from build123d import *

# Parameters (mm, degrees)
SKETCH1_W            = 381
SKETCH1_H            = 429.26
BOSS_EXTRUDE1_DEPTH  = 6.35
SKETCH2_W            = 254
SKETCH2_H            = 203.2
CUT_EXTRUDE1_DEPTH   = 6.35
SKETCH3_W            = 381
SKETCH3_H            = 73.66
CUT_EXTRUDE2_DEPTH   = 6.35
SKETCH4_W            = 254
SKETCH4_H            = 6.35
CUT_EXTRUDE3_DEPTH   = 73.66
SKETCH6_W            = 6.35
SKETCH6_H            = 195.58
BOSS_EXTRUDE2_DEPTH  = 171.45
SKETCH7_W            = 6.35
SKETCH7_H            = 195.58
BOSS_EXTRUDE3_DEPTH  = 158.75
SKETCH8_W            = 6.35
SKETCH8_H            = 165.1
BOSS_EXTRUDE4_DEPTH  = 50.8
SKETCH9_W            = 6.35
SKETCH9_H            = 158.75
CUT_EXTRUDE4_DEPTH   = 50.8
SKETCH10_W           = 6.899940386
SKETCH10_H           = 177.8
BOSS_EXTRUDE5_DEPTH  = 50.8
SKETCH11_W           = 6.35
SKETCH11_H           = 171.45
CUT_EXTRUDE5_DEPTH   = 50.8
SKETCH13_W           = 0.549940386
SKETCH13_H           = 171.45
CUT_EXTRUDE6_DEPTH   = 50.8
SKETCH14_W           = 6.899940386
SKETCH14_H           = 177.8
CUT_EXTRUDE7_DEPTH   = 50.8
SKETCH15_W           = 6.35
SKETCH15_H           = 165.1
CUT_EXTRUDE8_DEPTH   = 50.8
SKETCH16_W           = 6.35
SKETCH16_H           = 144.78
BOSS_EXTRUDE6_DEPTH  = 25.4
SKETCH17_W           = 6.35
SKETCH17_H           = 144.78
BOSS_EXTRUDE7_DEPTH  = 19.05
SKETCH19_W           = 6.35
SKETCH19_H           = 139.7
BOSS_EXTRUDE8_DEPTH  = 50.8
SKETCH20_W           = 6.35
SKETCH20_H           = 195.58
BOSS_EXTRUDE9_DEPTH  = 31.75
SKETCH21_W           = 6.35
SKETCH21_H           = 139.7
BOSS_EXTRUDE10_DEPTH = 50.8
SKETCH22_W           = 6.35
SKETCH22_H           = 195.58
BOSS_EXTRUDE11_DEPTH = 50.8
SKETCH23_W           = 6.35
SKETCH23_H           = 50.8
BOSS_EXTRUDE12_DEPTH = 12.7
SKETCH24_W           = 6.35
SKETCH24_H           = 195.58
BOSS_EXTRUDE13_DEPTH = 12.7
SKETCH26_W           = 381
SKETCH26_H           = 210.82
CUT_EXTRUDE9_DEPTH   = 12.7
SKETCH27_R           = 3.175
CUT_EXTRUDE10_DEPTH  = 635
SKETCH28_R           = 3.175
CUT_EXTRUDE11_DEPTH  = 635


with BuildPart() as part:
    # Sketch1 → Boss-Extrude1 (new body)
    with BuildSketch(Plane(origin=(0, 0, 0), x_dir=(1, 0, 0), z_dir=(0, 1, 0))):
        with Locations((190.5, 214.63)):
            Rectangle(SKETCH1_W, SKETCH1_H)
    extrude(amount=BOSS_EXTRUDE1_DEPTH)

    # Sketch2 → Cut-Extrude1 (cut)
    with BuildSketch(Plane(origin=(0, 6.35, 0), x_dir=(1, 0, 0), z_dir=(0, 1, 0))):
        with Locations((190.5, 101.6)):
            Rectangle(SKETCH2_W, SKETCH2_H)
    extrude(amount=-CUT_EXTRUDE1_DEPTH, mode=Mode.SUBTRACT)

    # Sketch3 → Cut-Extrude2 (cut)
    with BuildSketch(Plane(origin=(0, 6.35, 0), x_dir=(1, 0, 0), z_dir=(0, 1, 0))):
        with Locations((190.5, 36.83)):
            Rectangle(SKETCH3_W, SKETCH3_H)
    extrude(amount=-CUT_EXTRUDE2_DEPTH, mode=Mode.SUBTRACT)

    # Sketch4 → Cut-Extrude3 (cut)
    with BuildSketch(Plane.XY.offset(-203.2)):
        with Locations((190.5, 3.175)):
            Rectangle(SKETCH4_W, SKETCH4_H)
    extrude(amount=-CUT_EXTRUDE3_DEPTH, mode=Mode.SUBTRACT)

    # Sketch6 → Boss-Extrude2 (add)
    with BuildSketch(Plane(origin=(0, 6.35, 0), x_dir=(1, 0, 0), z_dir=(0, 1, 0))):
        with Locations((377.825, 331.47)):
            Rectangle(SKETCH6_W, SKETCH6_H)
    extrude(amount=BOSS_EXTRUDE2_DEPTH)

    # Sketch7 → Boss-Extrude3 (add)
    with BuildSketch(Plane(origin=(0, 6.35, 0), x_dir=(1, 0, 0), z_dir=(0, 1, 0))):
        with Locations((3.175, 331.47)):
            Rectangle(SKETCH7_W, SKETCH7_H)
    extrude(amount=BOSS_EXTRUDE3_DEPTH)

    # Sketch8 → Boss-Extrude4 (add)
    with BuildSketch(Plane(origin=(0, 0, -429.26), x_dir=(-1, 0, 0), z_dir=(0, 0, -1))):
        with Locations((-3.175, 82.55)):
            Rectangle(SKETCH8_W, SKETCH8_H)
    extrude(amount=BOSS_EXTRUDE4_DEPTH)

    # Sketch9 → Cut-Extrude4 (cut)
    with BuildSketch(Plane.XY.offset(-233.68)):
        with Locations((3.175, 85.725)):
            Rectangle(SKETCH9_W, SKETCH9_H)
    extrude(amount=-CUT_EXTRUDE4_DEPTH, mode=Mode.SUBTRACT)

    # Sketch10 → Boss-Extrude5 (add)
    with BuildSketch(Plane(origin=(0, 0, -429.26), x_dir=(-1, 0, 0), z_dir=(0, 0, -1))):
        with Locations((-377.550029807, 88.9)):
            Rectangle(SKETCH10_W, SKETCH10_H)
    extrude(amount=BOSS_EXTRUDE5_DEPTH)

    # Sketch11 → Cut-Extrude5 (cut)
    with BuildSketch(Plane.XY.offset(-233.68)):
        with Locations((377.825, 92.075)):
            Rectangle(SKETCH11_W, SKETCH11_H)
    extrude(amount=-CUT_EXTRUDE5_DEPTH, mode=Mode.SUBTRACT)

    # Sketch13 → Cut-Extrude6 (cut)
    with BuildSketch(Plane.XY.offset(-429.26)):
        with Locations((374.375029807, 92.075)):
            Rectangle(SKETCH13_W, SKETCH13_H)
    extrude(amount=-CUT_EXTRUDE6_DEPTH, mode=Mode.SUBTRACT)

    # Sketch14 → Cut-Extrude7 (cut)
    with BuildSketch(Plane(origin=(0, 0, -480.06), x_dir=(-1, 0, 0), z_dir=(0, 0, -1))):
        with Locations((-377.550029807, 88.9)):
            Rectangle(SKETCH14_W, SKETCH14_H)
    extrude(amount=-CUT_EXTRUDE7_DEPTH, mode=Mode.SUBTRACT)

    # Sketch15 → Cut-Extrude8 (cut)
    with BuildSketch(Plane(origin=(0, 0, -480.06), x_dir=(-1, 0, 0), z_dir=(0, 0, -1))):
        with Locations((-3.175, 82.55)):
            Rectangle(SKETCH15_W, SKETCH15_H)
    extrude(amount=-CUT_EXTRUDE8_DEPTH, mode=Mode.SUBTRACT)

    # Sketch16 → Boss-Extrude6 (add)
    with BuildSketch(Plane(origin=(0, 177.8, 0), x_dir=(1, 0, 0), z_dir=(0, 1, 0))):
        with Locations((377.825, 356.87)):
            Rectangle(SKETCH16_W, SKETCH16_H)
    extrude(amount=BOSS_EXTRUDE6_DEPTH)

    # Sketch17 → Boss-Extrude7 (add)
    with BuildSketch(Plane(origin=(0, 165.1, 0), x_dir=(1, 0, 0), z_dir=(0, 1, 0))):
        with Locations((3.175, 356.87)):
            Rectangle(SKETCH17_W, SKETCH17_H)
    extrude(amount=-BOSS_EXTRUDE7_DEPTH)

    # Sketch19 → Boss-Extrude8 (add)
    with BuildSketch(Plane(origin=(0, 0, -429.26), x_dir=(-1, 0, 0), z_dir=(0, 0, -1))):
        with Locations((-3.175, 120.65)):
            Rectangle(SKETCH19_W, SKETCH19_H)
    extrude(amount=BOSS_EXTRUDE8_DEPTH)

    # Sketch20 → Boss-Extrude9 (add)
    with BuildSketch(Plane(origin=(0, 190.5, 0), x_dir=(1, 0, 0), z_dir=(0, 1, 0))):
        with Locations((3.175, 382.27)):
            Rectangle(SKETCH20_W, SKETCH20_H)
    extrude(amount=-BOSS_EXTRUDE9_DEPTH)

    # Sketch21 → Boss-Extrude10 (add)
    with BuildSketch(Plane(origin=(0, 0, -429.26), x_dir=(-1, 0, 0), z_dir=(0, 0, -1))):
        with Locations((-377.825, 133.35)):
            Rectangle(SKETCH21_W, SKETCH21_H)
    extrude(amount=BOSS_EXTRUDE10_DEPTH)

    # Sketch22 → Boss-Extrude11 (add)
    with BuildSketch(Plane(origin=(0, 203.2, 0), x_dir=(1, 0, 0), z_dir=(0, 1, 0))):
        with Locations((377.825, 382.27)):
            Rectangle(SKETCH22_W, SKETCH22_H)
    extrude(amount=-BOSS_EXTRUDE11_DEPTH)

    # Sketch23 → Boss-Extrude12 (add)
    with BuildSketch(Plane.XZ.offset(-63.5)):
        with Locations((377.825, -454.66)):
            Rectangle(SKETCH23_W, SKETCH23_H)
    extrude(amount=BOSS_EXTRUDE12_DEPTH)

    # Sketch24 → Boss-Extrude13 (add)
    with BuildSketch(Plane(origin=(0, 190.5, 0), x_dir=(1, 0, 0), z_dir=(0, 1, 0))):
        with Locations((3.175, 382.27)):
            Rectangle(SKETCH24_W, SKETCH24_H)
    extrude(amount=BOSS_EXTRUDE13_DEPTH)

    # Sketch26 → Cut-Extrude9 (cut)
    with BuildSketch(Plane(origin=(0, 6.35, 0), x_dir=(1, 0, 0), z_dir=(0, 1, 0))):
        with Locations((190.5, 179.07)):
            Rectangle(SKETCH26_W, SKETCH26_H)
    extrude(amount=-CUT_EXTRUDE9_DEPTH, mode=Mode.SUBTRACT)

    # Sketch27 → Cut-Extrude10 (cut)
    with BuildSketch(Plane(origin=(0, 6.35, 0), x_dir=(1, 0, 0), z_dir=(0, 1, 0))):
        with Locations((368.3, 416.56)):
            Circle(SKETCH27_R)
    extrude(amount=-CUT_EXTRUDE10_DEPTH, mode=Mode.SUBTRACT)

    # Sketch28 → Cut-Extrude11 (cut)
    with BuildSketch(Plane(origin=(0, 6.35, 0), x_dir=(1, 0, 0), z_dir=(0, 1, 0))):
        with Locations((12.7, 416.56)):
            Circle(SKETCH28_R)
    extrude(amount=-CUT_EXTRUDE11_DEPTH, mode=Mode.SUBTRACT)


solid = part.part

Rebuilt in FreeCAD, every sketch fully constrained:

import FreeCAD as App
import Part
import Sketcher
from FreeCAD import Vector
Q = App.Units.Quantity

doc = App.newDocument("Part")
params = doc.addObject("Spreadsheet::Sheet", "Params")
for row, (alias, value) in enumerate([
    ("sketch1_width", "15 in"),
    ("sketch1_height", "16.9 in"),
    ("pad1_length", "0.25 in"),
    ("sketch2_width", "10 in"),
    ("sketch2_height", "8 in"),
    ("pocket1_length", "0.25 in"),
    ("sketch3_width", "15 in"),
    ("sketch3_height", "2.9 in"),
    ("pocket2_length", "0.25 in"),
    ("sketch4_width", "10 in"),
    ("sketch4_height", "0.25 in"),
    ("pocket3_length", "2.9 in"),
    ("sketch5_height", "7.7 in"),
    ("sketch5_width", "0.25 in"),
    ("pad2_length", "6.75 in"),
    ("sketch6_height", "7.7 in"),
    ("sketch6_width", "0.25 in"),
    ("pad3_length", "6.25 in"),
    ("sketch7_height", "6.5 in"),
    ("sketch7_width", "0.25 in"),
    ("pad4_length", "2 in"),
    ("sketch8_width", "0.25 in"),
    ("sketch8_height", "6.25 in"),
    ("pocket4_length", "2 in"),
    ("sketch9_height", "7 in"),
    ("pad5_length", "2 in"),
    ("sketch10_width", "0.25 in"),
    ("sketch10_height", "6.75 in"),
    ("pocket5_length", "2 in"),
    ("sketch11_height", "6.75 in"),
    ("pocket6_length", "2 in"),
    ("sketch12_height", "7 in"),
    ("pocket7_length", "2 in"),
    ("sketch13_height", "6.5 in"),
    ("sketch13_width", "0.25 in"),
    ("pocket8_length", "2 in"),
    ("sketch14_height", "5.7 in"),
    ("sketch14_width", "0.25 in"),
    ("pad6_length", "1 in"),
    ("sketch15_height", "5.7 in"),
    ("sketch15_width", "0.25 in"),
    ("pad7_length", "0.75 in"),
    ("sketch16_height", "5.5 in"),
    ("sketch16_width", "0.25 in"),
    ("pad8_length", "2 in"),
    ("sketch17_height", "7.7 in"),
    ("sketch17_width", "0.25 in"),
    ("pad9_length", "1.25 in"),
    ("sketch18_height", "5.5 in"),
    ("sketch18_width", "0.25 in"),
    ("pad10_length", "2 in"),
    ("sketch19_height", "7.7 in"),
    ("sketch19_width", "0.25 in"),
    ("pad11_length", "2 in"),
    ("sketch20_height", "2 in"),
    ("sketch20_width", "0.25 in"),
    ("pad12_length", "0.5 in"),
    ("sketch21_height", "7.7 in"),
    ("sketch21_width", "0.25 in"),
    ("pad13_length", "0.5 in"),
    ("sketch22_width", "15 in"),
    ("sketch22_height", "8.3 in"),
    ("pocket9_length", "0.5 in"),
    ("sketch23_diameter", "0.25 in"),
    ("pocket10_length", "25 in"),
    ("sketch24_diameter", "0.25 in"),
    ("pocket11_length", "25 in"),
], start=1):
    params.set(f"A{row}", alias)
    params.set(f"B{row}", "=" + value)
    params.setAlias(f"B{row}", alias)

body = doc.addObject("PartDesign::Body", "Body")

sketch1 = body.newObject("Sketcher::SketchObject", "Sketch")
sketch1.AttachmentSupport = (doc.getObject("XZ_Plane"), [""])
sketch1.MapMode = "FlatFace"
sketch1.addGeometry(Part.LineSegment(Vector(0, -429, 0), Vector(0, 0, 0)), False)
sketch1.addGeometry(Part.LineSegment(Vector(0, 0, 0), Vector(381, 0, 0)), False)
sketch1.addGeometry(Part.LineSegment(Vector(381, 0, 0), Vector(381, -429, 0)), False)
sketch1.addGeometry(Part.LineSegment(Vector(381, -429, 0), Vector(0, -429, 0)), False)
sketch1.addConstraint(Sketcher.Constraint("Coincident", 0, 2, 1, 1))
sketch1.addConstraint(Sketcher.Constraint("Coincident", 1, 2, 2, 1))
sketch1.addConstraint(Sketcher.Constraint("Coincident", 2, 2, 3, 1))
sketch1.addConstraint(Sketcher.Constraint("Coincident", 3, 2, 0, 1))
sketch1.addConstraint(Sketcher.Constraint("Vertical", 0))
sketch1.addConstraint(Sketcher.Constraint("Horizontal", 1))
sketch1.addConstraint(Sketcher.Constraint("Vertical", 2))
sketch1.addConstraint(Sketcher.Constraint("Horizontal", 3))
sketch1.addConstraint(Sketcher.Constraint("Coincident", 0, 2, -1, 1))
sketch1.addConstraint(Sketcher.Constraint("DistanceX", 1, 1, 1, 2, Q("15 in")))
sketch1.addConstraint(Sketcher.Constraint("DistanceY", 0, 1, 0, 2, Q("16.9 in")))
sketch1.setExpression("Constraints[9]", "Params.sketch1_width")
sketch1.setExpression("Constraints[10]", "Params.sketch1_height")
pad1 = body.newObject("PartDesign::Pad", "Pad")
pad1.Profile = sketch1
pad1.setExpression("Length", "Params.pad1_length")
pad1.Reversed = True

sketch2 = body.newObject("Sketcher::SketchObject", "Sketch001")
sketch2.AttachmentSupport = (doc.getObject("XZ_Plane"), [""])
sketch2.MapMode = "FlatFace"
sketch2.AttachmentOffset = App.Placement(Vector(0, 0, -0.25 * 25.4), App.Rotation())
sketch2.addGeometry(Part.LineSegment(Vector(64, -203, 0), Vector(64, 0, 0)), False)
sketch2.addGeometry(Part.LineSegment(Vector(64, 0, 0), Vector(318, 0, 0)), False)
sketch2.addGeometry(Part.LineSegment(Vector(318, 0, 0), Vector(318, -203, 0)), False)
sketch2.addGeometry(Part.LineSegment(Vector(318, -203, 0), Vector(64, -203, 0)), False)
sketch2.addConstraint(Sketcher.Constraint("Coincident", 0, 2, 1, 1))
sketch2.addConstraint(Sketcher.Constraint("Coincident", 1, 2, 2, 1))
sketch2.addConstraint(Sketcher.Constraint("Coincident", 2, 2, 3, 1))
sketch2.addConstraint(Sketcher.Constraint("Coincident", 3, 2, 0, 1))
sketch2.addConstraint(Sketcher.Constraint("Vertical", 0))
sketch2.addConstraint(Sketcher.Constraint("Horizontal", 1))
sketch2.addConstraint(Sketcher.Constraint("Vertical", 2))
sketch2.addConstraint(Sketcher.Constraint("Horizontal", 3))
sketch2.addConstraint(Sketcher.Constraint("PointOnObject", 0, 2, -1))
sketch2.addConstraint(Sketcher.Constraint("DistanceX", 1, 1, 1, 2, Q("10 in")))
sketch2.addConstraint(Sketcher.Constraint("DistanceY", 0, 1, 0, 2, Q("8 in")))
sketch2.addConstraint(Sketcher.Constraint("DistanceX", -1, 1, 0, 2, Q("2.5 in")))
sketch2.setExpression("Constraints[9]", "Params.sketch2_width")
sketch2.setExpression("Constraints[10]", "Params.sketch2_height")
pocket1 = body.newObject("PartDesign::Pocket", "Pocket")
pocket1.Profile = sketch2
pocket1.setExpression("Length", "Params.pocket1_length")
pocket1.Reversed = True

sketch3 = body.newObject("Sketcher::SketchObject", "Sketch002")
sketch3.AttachmentSupport = (doc.getObject("XZ_Plane"), [""])
sketch3.MapMode = "FlatFace"
sketch3.AttachmentOffset = App.Placement(Vector(0, 0, -0.25 * 25.4), App.Rotation())
sketch3.addGeometry(Part.LineSegment(Vector(0, -74, 0), Vector(0, 0, 0)), False)
sketch3.addGeometry(Part.LineSegment(Vector(0, 0, 0), Vector(381, 0, 0)), False)
sketch3.addGeometry(Part.LineSegment(Vector(381, 0, 0), Vector(381, -74, 0)), False)
sketch3.addGeometry(Part.LineSegment(Vector(381, -74, 0), Vector(0, -74, 0)), False)
sketch3.addConstraint(Sketcher.Constraint("Coincident", 0, 2, 1, 1))
sketch3.addConstraint(Sketcher.Constraint("Coincident", 1, 2, 2, 1))
sketch3.addConstraint(Sketcher.Constraint("Coincident", 2, 2, 3, 1))
sketch3.addConstraint(Sketcher.Constraint("Coincident", 3, 2, 0, 1))
sketch3.addConstraint(Sketcher.Constraint("Vertical", 0))
sketch3.addConstraint(Sketcher.Constraint("Horizontal", 1))
sketch3.addConstraint(Sketcher.Constraint("Vertical", 2))
sketch3.addConstraint(Sketcher.Constraint("Horizontal", 3))
sketch3.addConstraint(Sketcher.Constraint("Coincident", 0, 2, -1, 1))
sketch3.addConstraint(Sketcher.Constraint("DistanceX", 1, 1, 1, 2, Q("15 in")))
sketch3.addConstraint(Sketcher.Constraint("DistanceY", 0, 1, 0, 2, Q("2.9 in")))
sketch3.setExpression("Constraints[9]", "Params.sketch3_width")
sketch3.setExpression("Constraints[10]", "Params.sketch3_height")
pocket2 = body.newObject("PartDesign::Pocket", "Pocket001")
pocket2.Profile = sketch3
pocket2.setExpression("Length", "Params.pocket2_length")
pocket2.Reversed = True

sketch4 = body.newObject("Sketcher::SketchObject", "Sketch003")
sketch4.AttachmentSupport = (doc.getObject("XY_Plane"), [""])
sketch4.MapMode = "FlatFace"
sketch4.AttachmentOffset = App.Placement(Vector(0, 0, -8 * 25.4), App.Rotation())
sketch4.addGeometry(Part.LineSegment(Vector(64, 6, 0), Vector(64, 0, 0)), False)
sketch4.addGeometry(Part.LineSegment(Vector(64, 0, 0), Vector(318, 0, 0)), False)
sketch4.addGeometry(Part.LineSegment(Vector(318, 0, 0), Vector(318, 6, 0)), False)
sketch4.addGeometry(Part.LineSegment(Vector(318, 6, 0), Vector(64, 6, 0)), False)
sketch4.addConstraint(Sketcher.Constraint("Coincident", 0, 2, 1, 1))
sketch4.addConstraint(Sketcher.Constraint("Coincident", 1, 2, 2, 1))
sketch4.addConstraint(Sketcher.Constraint("Coincident", 2, 2, 3, 1))
sketch4.addConstraint(Sketcher.Constraint("Coincident", 3, 2, 0, 1))
sketch4.addConstraint(Sketcher.Constraint("Vertical", 0))
sketch4.addConstraint(Sketcher.Constraint("Horizontal", 1))
sketch4.addConstraint(Sketcher.Constraint("Vertical", 2))
sketch4.addConstraint(Sketcher.Constraint("Horizontal", 3))
sketch4.addConstraint(Sketcher.Constraint("PointOnObject", 0, 2, -1))
sketch4.addConstraint(Sketcher.Constraint("DistanceX", 1, 1, 1, 2, Q("10 in")))
sketch4.addConstraint(Sketcher.Constraint("DistanceY", 0, 2, 0, 1, Q("0.25 in")))
sketch4.addConstraint(Sketcher.Constraint("DistanceX", -1, 1, 0, 2, Q("2.5 in")))
sketch4.setExpression("Constraints[9]", "Params.sketch4_width")
sketch4.setExpression("Constraints[10]", "Params.sketch4_height")
pocket3 = body.newObject("PartDesign::Pocket", "Pocket002")
pocket3.Profile = sketch4
pocket3.setExpression("Length", "Params.pocket3_length")

sketch5 = body.newObject("Sketcher::SketchObject", "Sketch004")
sketch5.AttachmentSupport = (doc.getObject("XZ_Plane"), [""])
sketch5.MapMode = "FlatFace"
sketch5.AttachmentOffset = App.Placement(Vector(0, 0, -0.25 * 25.4), App.Rotation())
sketch5.addGeometry(Part.LineSegment(Vector(375, -429, 0), Vector(375, -234, 0)), False)
sketch5.addGeometry(Part.LineSegment(Vector(375, -234, 0), Vector(381, -234, 0)), False)
sketch5.addGeometry(Part.LineSegment(Vector(381, -234, 0), Vector(381, -429, 0)), False)
sketch5.addGeometry(Part.LineSegment(Vector(381, -429, 0), Vector(375, -429, 0)), False)
sketch5.addConstraint(Sketcher.Constraint("Coincident", 0, 2, 1, 1))
sketch5.addConstraint(Sketcher.Constraint("Coincident", 1, 2, 2, 1))
sketch5.addConstraint(Sketcher.Constraint("Coincident", 2, 2, 3, 1))
sketch5.addConstraint(Sketcher.Constraint("Coincident", 3, 2, 0, 1))
sketch5.addConstraint(Sketcher.Constraint("Vertical", 0))
sketch5.addConstraint(Sketcher.Constraint("Horizontal", 1))
sketch5.addConstraint(Sketcher.Constraint("Vertical", 2))
sketch5.addConstraint(Sketcher.Constraint("Horizontal", 3))
sketch5.addConstraint(Sketcher.Constraint("DistanceY", 0, 1, 0, 2, Q("7.7 in")))
sketch5.addConstraint(Sketcher.Constraint("DistanceX", -1, 1, 1, 2, Q("15 in")))
sketch5.addConstraint(Sketcher.Constraint("DistanceX", 1, 1, 1, 2, Q("0.25 in")))
sketch5.addConstraint(Sketcher.Constraint("DistanceY", 0, 2, -1, 1, Q("9.2 in")))
sketch5.setExpression("Constraints[8]", "Params.sketch5_height")
sketch5.setExpression("Constraints[10]", "Params.sketch5_width")
pad2 = body.newObject("PartDesign::Pad", "Pad001")
pad2.Profile = sketch5
pad2.setExpression("Length", "Params.pad2_length")
pad2.Reversed = True

sketch6 = body.newObject("Sketcher::SketchObject", "Sketch005")
sketch6.AttachmentSupport = (doc.getObject("XZ_Plane"), [""])
sketch6.MapMode = "FlatFace"
sketch6.AttachmentOffset = App.Placement(Vector(0, 0, -0.25 * 25.4), App.Rotation())
sketch6.addGeometry(Part.LineSegment(Vector(0, -429, 0), Vector(0, -234, 0)), False)
sketch6.addGeometry(Part.LineSegment(Vector(0, -234, 0), Vector(6, -234, 0)), False)
sketch6.addGeometry(Part.LineSegment(Vector(6, -234, 0), Vector(6, -429, 0)), False)
sketch6.addGeometry(Part.LineSegment(Vector(6, -429, 0), Vector(0, -429, 0)), False)
sketch6.addConstraint(Sketcher.Constraint("Coincident", 0, 2, 1, 1))
sketch6.addConstraint(Sketcher.Constraint("Coincident", 1, 2, 2, 1))
sketch6.addConstraint(Sketcher.Constraint("Coincident", 2, 2, 3, 1))
sketch6.addConstraint(Sketcher.Constraint("Coincident", 3, 2, 0, 1))
sketch6.addConstraint(Sketcher.Constraint("Vertical", 0))
sketch6.addConstraint(Sketcher.Constraint("Horizontal", 1))
sketch6.addConstraint(Sketcher.Constraint("Vertical", 2))
sketch6.addConstraint(Sketcher.Constraint("Horizontal", 3))
sketch6.addConstraint(Sketcher.Constraint("PointOnObject", 0, 2, -2))
sketch6.addConstraint(Sketcher.Constraint("DistanceY", 0, 1, 0, 2, Q("7.7 in")))
sketch6.addConstraint(Sketcher.Constraint("DistanceX", 1, 1, 1, 2, Q("0.25 in")))
sketch6.addConstraint(Sketcher.Constraint("DistanceY", 0, 2, -1, 1, Q("9.2 in")))
sketch6.setExpression("Constraints[9]", "Params.sketch6_height")
sketch6.setExpression("Constraints[10]", "Params.sketch6_width")
pad3 = body.newObject("PartDesign::Pad", "Pad002")
pad3.Profile = sketch6
pad3.setExpression("Length", "Params.pad3_length")
pad3.Reversed = True

sketch7 = body.newObject("Sketcher::SketchObject", "Sketch006")
sketch7.AttachmentSupport = (doc.getObject("XY_Plane"), [""])
sketch7.MapMode = "FlatFace"
sketch7.AttachmentOffset = App.Placement(Vector(0, 0, -16.9 * 25.4), App.Rotation())
sketch7.addGeometry(Part.LineSegment(Vector(6, 165, 0), Vector(6, 0, 0)), False)
sketch7.addGeometry(Part.LineSegment(Vector(6, 0, 0), Vector(0, 0, 0)), False)
sketch7.addGeometry(Part.LineSegment(Vector(0, 0, 0), Vector(0, 165, 0)), False)
sketch7.addGeometry(Part.LineSegment(Vector(0, 165, 0), Vector(6, 165, 0)), False)
sketch7.addConstraint(Sketcher.Constraint("Coincident", 0, 2, 1, 1))
sketch7.addConstraint(Sketcher.Constraint("Coincident", 1, 2, 2, 1))
sketch7.addConstraint(Sketcher.Constraint("Coincident", 2, 2, 3, 1))
sketch7.addConstraint(Sketcher.Constraint("Coincident", 3, 2, 0, 1))
sketch7.addConstraint(Sketcher.Constraint("Vertical", 0))
sketch7.addConstraint(Sketcher.Constraint("Horizontal", 1))
sketch7.addConstraint(Sketcher.Constraint("Vertical", 2))
sketch7.addConstraint(Sketcher.Constraint("Horizontal", 3))
sketch7.addConstraint(Sketcher.Constraint("Coincident", 1, 2, -1, 1))
sketch7.addConstraint(Sketcher.Constraint("DistanceY", 0, 2, 0, 1, Q("6.5 in")))
sketch7.addConstraint(Sketcher.Constraint("DistanceX", 1, 2, 1, 1, Q("0.25 in")))
sketch7.setExpression("Constraints[9]", "Params.sketch7_height")
sketch7.setExpression("Constraints[10]", "Params.sketch7_width")
pad4 = body.newObject("PartDesign::Pad", "Pad003")
pad4.Profile = sketch7
pad4.setExpression("Length", "Params.pad4_length")
pad4.Reversed = True

sketch8 = body.newObject("Sketcher::SketchObject", "Sketch007")
sketch8.AttachmentSupport = (doc.getObject("XY_Plane"), [""])
sketch8.MapMode = "FlatFace"
sketch8.AttachmentOffset = App.Placement(Vector(0, 0, -9.2 * 25.4), App.Rotation())
sketch8.addGeometry(Part.LineSegment(Vector(0, 165, 0), Vector(0, 6, 0)), False)
sketch8.addGeometry(Part.LineSegment(Vector(0, 6, 0), Vector(6, 6, 0)), False)
sketch8.addGeometry(Part.LineSegment(Vector(6, 6, 0), Vector(6, 165, 0)), False)
sketch8.addGeometry(Part.LineSegment(Vector(6, 165, 0), Vector(0, 165, 0)), False)
sketch8.addConstraint(Sketcher.Constraint("Coincident", 0, 2, 1, 1))
sketch8.addConstraint(Sketcher.Constraint("Coincident", 1, 2, 2, 1))
sketch8.addConstraint(Sketcher.Constraint("Coincident", 2, 2, 3, 1))
sketch8.addConstraint(Sketcher.Constraint("Coincident", 3, 2, 0, 1))
sketch8.addConstraint(Sketcher.Constraint("Vertical", 0))
sketch8.addConstraint(Sketcher.Constraint("Horizontal", 1))
sketch8.addConstraint(Sketcher.Constraint("Vertical", 2))
sketch8.addConstraint(Sketcher.Constraint("Horizontal", 3))
sketch8.addConstraint(Sketcher.Constraint("PointOnObject", 0, 2, -2))
sketch8.addConstraint(Sketcher.Constraint("DistanceX", 1, 1, 1, 2, Q("0.25 in")))
sketch8.addConstraint(Sketcher.Constraint("DistanceY", 0, 2, 0, 1, Q("6.25 in")))
sketch8.addConstraint(Sketcher.Constraint("DistanceY", -1, 1, 2, 2, Q("6.5 in")))
sketch8.setExpression("Constraints[9]", "Params.sketch8_width")
sketch8.setExpression("Constraints[10]", "Params.sketch8_height")
pocket4 = body.newObject("PartDesign::Pocket", "Pocket003")
pocket4.Profile = sketch8
pocket4.setExpression("Length", "Params.pocket4_length")

sketch9 = body.newObject("Sketcher::SketchObject", "Sketch008")
sketch9.AttachmentSupport = (doc.getObject("XY_Plane"), [""])
sketch9.MapMode = "FlatFace"
sketch9.AttachmentOffset = App.Placement(Vector(0, 0, -16.9 * 25.4), App.Rotation())
sketch9.addGeometry(Part.LineSegment(Vector(381, 178, 0), Vector(381, 0, 0)), False)
sketch9.addGeometry(Part.LineSegment(Vector(381, 0, 0), Vector(374, 0, 0)), False)
sketch9.addGeometry(Part.LineSegment(Vector(374, 0, 0), Vector(374, 178, 0)), False)
sketch9.addGeometry(Part.LineSegment(Vector(374, 178, 0), Vector(381, 178, 0)), False)
sketch9.addConstraint(Sketcher.Constraint("Coincident", 0, 2, 1, 1))
sketch9.addConstraint(Sketcher.Constraint("Coincident", 1, 2, 2, 1))
sketch9.addConstraint(Sketcher.Constraint("Coincident", 2, 2, 3, 1))
sketch9.addConstraint(Sketcher.Constraint("Coincident", 3, 2, 0, 1))
sketch9.addConstraint(Sketcher.Constraint("Vertical", 0))
sketch9.addConstraint(Sketcher.Constraint("Horizontal", 1))
sketch9.addConstraint(Sketcher.Constraint("Vertical", 2))
sketch9.addConstraint(Sketcher.Constraint("Horizontal", 3))
sketch9.addConstraint(Sketcher.Constraint("PointOnObject", 0, 2, -1))
sketch9.addConstraint(Sketcher.Constraint("DistanceY", 0, 2, 0, 1, Q("7 in")))
sketch9.addConstraint(Sketcher.Constraint("DistanceX", -1, 1, 0, 2, Q("15 in")))
sketch9.addConstraint(Sketcher.Constraint("DistanceX", 1, 2, 1, 1, 6.89994))
sketch9.setExpression("Constraints[9]", "Params.sketch9_height")
pad5 = body.newObject("PartDesign::Pad", "Pad004")
pad5.Profile = sketch9
pad5.setExpression("Length", "Params.pad5_length")
pad5.Reversed = True

sketch10 = body.newObject("Sketcher::SketchObject", "Sketch009")
sketch10.AttachmentSupport = (doc.getObject("XY_Plane"), [""])
sketch10.MapMode = "FlatFace"
sketch10.AttachmentOffset = App.Placement(Vector(0, 0, -9.2 * 25.4), App.Rotation())
sketch10.addGeometry(Part.LineSegment(Vector(375, 178, 0), Vector(375, 6, 0)), False)
sketch10.addGeometry(Part.LineSegment(Vector(375, 6, 0), Vector(381, 6, 0)), False)
sketch10.addGeometry(Part.LineSegment(Vector(381, 6, 0), Vector(381, 178, 0)), False)
sketch10.addGeometry(Part.LineSegment(Vector(381, 178, 0), Vector(375, 178, 0)), False)
sketch10.addConstraint(Sketcher.Constraint("Coincident", 0, 2, 1, 1))
sketch10.addConstraint(Sketcher.Constraint("Coincident", 1, 2, 2, 1))
sketch10.addConstraint(Sketcher.Constraint("Coincident", 2, 2, 3, 1))
sketch10.addConstraint(Sketcher.Constraint("Coincident", 3, 2, 0, 1))
sketch10.addConstraint(Sketcher.Constraint("Vertical", 0))
sketch10.addConstraint(Sketcher.Constraint("Horizontal", 1))
sketch10.addConstraint(Sketcher.Constraint("Vertical", 2))
sketch10.addConstraint(Sketcher.Constraint("Horizontal", 3))
sketch10.addConstraint(Sketcher.Constraint("DistanceX", -1, 1, 1, 2, Q("15 in")))
sketch10.addConstraint(Sketcher.Constraint("DistanceY", -1, 1, 2, 2, Q("7 in")))
sketch10.addConstraint(Sketcher.Constraint("DistanceX", 1, 1, 1, 2, Q("0.25 in")))
sketch10.addConstraint(Sketcher.Constraint("DistanceY", 0, 2, 0, 1, Q("6.75 in")))
sketch10.setExpression("Constraints[10]", "Params.sketch10_width")
sketch10.setExpression("Constraints[11]", "Params.sketch10_height")
pocket5 = body.newObject("PartDesign::Pocket", "Pocket004")
pocket5.Profile = sketch10
pocket5.setExpression("Length", "Params.pocket5_length")

sketch11 = body.newObject("Sketcher::SketchObject", "Sketch010")
sketch11.AttachmentSupport = (doc.getObject("XY_Plane"), [""])
sketch11.MapMode = "FlatFace"
sketch11.AttachmentOffset = App.Placement(Vector(0, 0, -16.9 * 25.4), App.Rotation())
sketch11.addGeometry(Part.LineSegment(Vector(374.10006, 177.8, 0), Vector(374.10006, 6.35, 0)), False)
sketch11.addGeometry(Part.LineSegment(Vector(374.10006, 6.35, 0), Vector(374.65, 6.35, 0)), False)
sketch11.addGeometry(Part.LineSegment(Vector(374.65, 6.35, 0), Vector(374.65, 177.8, 0)), False)
sketch11.addGeometry(Part.LineSegment(Vector(374.65, 177.8, 0), Vector(374.10006, 177.8, 0)), False)
sketch11.addConstraint(Sketcher.Constraint("Coincident", 0, 2, 1, 1))
sketch11.addConstraint(Sketcher.Constraint("Coincident", 1, 2, 2, 1))
sketch11.addConstraint(Sketcher.Constraint("Coincident", 2, 2, 3, 1))
sketch11.addConstraint(Sketcher.Constraint("Coincident", 3, 2, 0, 1))
sketch11.addConstraint(Sketcher.Constraint("Vertical", 0))
sketch11.addConstraint(Sketcher.Constraint("Horizontal", 1))
sketch11.addConstraint(Sketcher.Constraint("Vertical", 2))
sketch11.addConstraint(Sketcher.Constraint("Horizontal", 3))
sketch11.addConstraint(Sketcher.Constraint("DistanceY", -1, 1, 2, 2, Q("7 in")))
sketch11.addConstraint(Sketcher.Constraint("DistanceY", 0, 2, 0, 1, Q("6.75 in")))
sketch11.addConstraint(Sketcher.Constraint("DistanceX", -1, 1, 1, 2, Q("14.75 in")))
sketch11.addConstraint(Sketcher.Constraint("DistanceX", 1, 1, 1, 2, 0.54994))
sketch11.setExpression("Constraints[9]", "Params.sketch11_height")
pocket6 = body.newObject("PartDesign::Pocket", "Pocket005")
pocket6.Profile = sketch11
pocket6.setExpression("Length", "Params.pocket6_length")

sketch12 = body.newObject("Sketcher::SketchObject", "Sketch011")
sketch12.AttachmentSupport = (doc.getObject("XY_Plane"), [""])
sketch12.MapMode = "FlatFace"
sketch12.AttachmentOffset = App.Placement(Vector(0, 0, -18.9 * 25.4), App.Rotation())
sketch12.addGeometry(Part.LineSegment(Vector(381, 178, 0), Vector(381, 0, 0)), False)
sketch12.addGeometry(Part.LineSegment(Vector(381, 0, 0), Vector(374, 0, 0)), False)
sketch12.addGeometry(Part.LineSegment(Vector(374, 0, 0), Vector(374, 178, 0)), False)
sketch12.addGeometry(Part.LineSegment(Vector(374, 178, 0), Vector(381, 178, 0)), False)
sketch12.addConstraint(Sketcher.Constraint("Coincident", 0, 2, 1, 1))
sketch12.addConstraint(Sketcher.Constraint("Coincident", 1, 2, 2, 1))
sketch12.addConstraint(Sketcher.Constraint("Coincident", 2, 2, 3, 1))
sketch12.addConstraint(Sketcher.Constraint("Coincident", 3, 2, 0, 1))
sketch12.addConstraint(Sketcher.Constraint("Vertical", 0))
sketch12.addConstraint(Sketcher.Constraint("Horizontal", 1))
sketch12.addConstraint(Sketcher.Constraint("Vertical", 2))
sketch12.addConstraint(Sketcher.Constraint("Horizontal", 3))
sketch12.addConstraint(Sketcher.Constraint("PointOnObject", 0, 2, -1))
sketch12.addConstraint(Sketcher.Constraint("DistanceY", 0, 2, 0, 1, Q("7 in")))
sketch12.addConstraint(Sketcher.Constraint("DistanceX", -1, 1, 0, 2, Q("15 in")))
sketch12.addConstraint(Sketcher.Constraint("DistanceX", 1, 2, 1, 1, 6.89994))
sketch12.setExpression("Constraints[9]", "Params.sketch12_height")
pocket7 = body.newObject("PartDesign::Pocket", "Pocket006")
pocket7.Profile = sketch12
pocket7.setExpression("Length", "Params.pocket7_length")
pocket7.Reversed = True

sketch13 = body.newObject("Sketcher::SketchObject", "Sketch012")
sketch13.AttachmentSupport = (doc.getObject("XY_Plane"), [""])
sketch13.MapMode = "FlatFace"
sketch13.AttachmentOffset = App.Placement(Vector(0, 0, -18.9 * 25.4), App.Rotation())
sketch13.addGeometry(Part.LineSegment(Vector(6, 165, 0), Vector(6, 0, 0)), False)
sketch13.addGeometry(Part.LineSegment(Vector(6, 0, 0), Vector(0, 0, 0)), False)
sketch13.addGeometry(Part.LineSegment(Vector(0, 0, 0), Vector(0, 165, 0)), False)
sketch13.addGeometry(Part.LineSegment(Vector(0, 165, 0), Vector(6, 165, 0)), False)
sketch13.addConstraint(Sketcher.Constraint("Coincident", 0, 2, 1, 1))
sketch13.addConstraint(Sketcher.Constraint("Coincident", 1, 2, 2, 1))
sketch13.addConstraint(Sketcher.Constraint("Coincident", 2, 2, 3, 1))
sketch13.addConstraint(Sketcher.Constraint("Coincident", 3, 2, 0, 1))
sketch13.addConstraint(Sketcher.Constraint("Vertical", 0))
sketch13.addConstraint(Sketcher.Constraint("Horizontal", 1))
sketch13.addConstraint(Sketcher.Constraint("Vertical", 2))
sketch13.addConstraint(Sketcher.Constraint("Horizontal", 3))
sketch13.addConstraint(Sketcher.Constraint("Coincident", 1, 2, -1, 1))
sketch13.addConstraint(Sketcher.Constraint("DistanceY", 0, 2, 0, 1, Q("6.5 in")))
sketch13.addConstraint(Sketcher.Constraint("DistanceX", 1, 2, 1, 1, Q("0.25 in")))
sketch13.setExpression("Constraints[9]", "Params.sketch13_height")
sketch13.setExpression("Constraints[10]", "Params.sketch13_width")
pocket8 = body.newObject("PartDesign::Pocket", "Pocket007")
pocket8.Profile = sketch13
pocket8.setExpression("Length", "Params.pocket8_length")
pocket8.Reversed = True

sketch14 = body.newObject("Sketcher::SketchObject", "Sketch013")
sketch14.AttachmentSupport = (doc.getObject("XZ_Plane"), [""])
sketch14.MapMode = "FlatFace"
sketch14.AttachmentOffset = App.Placement(Vector(0, 0, -7 * 25.4), App.Rotation())
sketch14.addGeometry(Part.LineSegment(Vector(375, -429, 0), Vector(375, -284, 0)), False)
sketch14.addGeometry(Part.LineSegment(Vector(375, -284, 0), Vector(381, -284, 0)), False)
sketch14.addGeometry(Part.LineSegment(Vector(381, -284, 0), Vector(381, -429, 0)), False)
sketch14.addGeometry(Part.LineSegment(Vector(381, -429, 0), Vector(375, -429, 0)), False)
sketch14.addConstraint(Sketcher.Constraint("Coincident", 0, 2, 1, 1))
sketch14.addConstraint(Sketcher.Constraint("Coincident", 1, 2, 2, 1))
sketch14.addConstraint(Sketcher.Constraint("Coincident", 2, 2, 3, 1))
sketch14.addConstraint(Sketcher.Constraint("Coincident", 3, 2, 0, 1))
sketch14.addConstraint(Sketcher.Constraint("Vertical", 0))
sketch14.addConstraint(Sketcher.Constraint("Horizontal", 1))
sketch14.addConstraint(Sketcher.Constraint("Vertical", 2))
sketch14.addConstraint(Sketcher.Constraint("Horizontal", 3))
sketch14.addConstraint(Sketcher.Constraint("DistanceY", 0, 1, 0, 2, Q("5.7 in")))
sketch14.addConstraint(Sketcher.Constraint("DistanceX", -1, 1, 1, 2, Q("15 in")))
sketch14.addConstraint(Sketcher.Constraint("DistanceX", 1, 1, 1, 2, Q("0.25 in")))
sketch14.addConstraint(Sketcher.Constraint("DistanceY", 0, 2, -1, 1, Q("11.2 in")))
sketch14.setExpression("Constraints[8]", "Params.sketch14_height")
sketch14.setExpression("Constraints[10]", "Params.sketch14_width")
pad6 = body.newObject("PartDesign::Pad", "Pad005")
pad6.Profile = sketch14
pad6.setExpression("Length", "Params.pad6_length")
pad6.Reversed = True

sketch15 = body.newObject("Sketcher::SketchObject", "Sketch014")
sketch15.AttachmentSupport = (doc.getObject("XZ_Plane"), [""])
sketch15.MapMode = "FlatFace"
sketch15.AttachmentOffset = App.Placement(Vector(0, 0, -6.5 * 25.4), App.Rotation())
sketch15.addGeometry(Part.LineSegment(Vector(0, -429, 0), Vector(0, -284, 0)), False)
sketch15.addGeometry(Part.LineSegment(Vector(0, -284, 0), Vector(6, -284, 0)), False)
sketch15.addGeometry(Part.LineSegment(Vector(6, -284, 0), Vector(6, -429, 0)), False)
sketch15.addGeometry(Part.LineSegment(Vector(6, -429, 0), Vector(0, -429, 0)), False)
sketch15.addConstraint(Sketcher.Constraint("Coincident", 0, 2, 1, 1))
sketch15.addConstraint(Sketcher.Constraint("Coincident", 1, 2, 2, 1))
sketch15.addConstraint(Sketcher.Constraint("Coincident", 2, 2, 3, 1))
sketch15.addConstraint(Sketcher.Constraint("Coincident", 3, 2, 0, 1))
sketch15.addConstraint(Sketcher.Constraint("Vertical", 0))
sketch15.addConstraint(Sketcher.Constraint("Horizontal", 1))
sketch15.addConstraint(Sketcher.Constraint("Vertical", 2))
sketch15.addConstraint(Sketcher.Constraint("Horizontal", 3))
sketch15.addConstraint(Sketcher.Constraint("PointOnObject", 0, 2, -2))
sketch15.addConstraint(Sketcher.Constraint("DistanceY", 0, 1, 0, 2, Q("5.7 in")))
sketch15.addConstraint(Sketcher.Constraint("DistanceX", 1, 1, 1, 2, Q("0.25 in")))
sketch15.addConstraint(Sketcher.Constraint("DistanceY", 0, 2, -1, 1, Q("11.2 in")))
sketch15.setExpression("Constraints[9]", "Params.sketch15_height")
sketch15.setExpression("Constraints[10]", "Params.sketch15_width")
pad7 = body.newObject("PartDesign::Pad", "Pad006")
pad7.Profile = sketch15
pad7.setExpression("Length", "Params.pad7_length")

sketch16 = body.newObject("Sketcher::SketchObject", "Sketch015")
sketch16.AttachmentSupport = (doc.getObject("XY_Plane"), [""])
sketch16.MapMode = "FlatFace"
sketch16.AttachmentOffset = App.Placement(Vector(0, 0, -16.9 * 25.4), App.Rotation())
sketch16.addGeometry(Part.LineSegment(Vector(6, 190, 0), Vector(6, 51, 0)), False)
sketch16.addGeometry(Part.LineSegment(Vector(6, 51, 0), Vector(0, 51, 0)), False)
sketch16.addGeometry(Part.LineSegment(Vector(0, 51, 0), Vector(0, 190, 0)), False)
sketch16.addGeometry(Part.LineSegment(Vector(0, 190, 0), Vector(6, 190, 0)), False)
sketch16.addConstraint(Sketcher.Constraint("Coincident", 0, 2, 1, 1))
sketch16.addConstraint(Sketcher.Constraint("Coincident", 1, 2, 2, 1))
sketch16.addConstraint(Sketcher.Constraint("Coincident", 2, 2, 3, 1))
sketch16.addConstraint(Sketcher.Constraint("Coincident", 3, 2, 0, 1))
sketch16.addConstraint(Sketcher.Constraint("Vertical", 0))
sketch16.addConstraint(Sketcher.Constraint("Horizontal", 1))
sketch16.addConstraint(Sketcher.Constraint("Vertical", 2))
sketch16.addConstraint(Sketcher.Constraint("Horizontal", 3))
sketch16.addConstraint(Sketcher.Constraint("PointOnObject", 1, 2, -2))
sketch16.addConstraint(Sketcher.Constraint("DistanceY", 0, 2, 0, 1, Q("5.5 in")))
sketch16.addConstraint(Sketcher.Constraint("DistanceY", -1, 1, 0, 2, Q("2 in")))
sketch16.addConstraint(Sketcher.Constraint("DistanceX", 1, 2, 1, 1, Q("0.25 in")))
sketch16.setExpression("Constraints[9]", "Params.sketch16_height")
sketch16.setExpression("Constraints[11]", "Params.sketch16_width")
pad8 = body.newObject("PartDesign::Pad", "Pad007")
pad8.Profile = sketch16
pad8.setExpression("Length", "Params.pad8_length")
pad8.Reversed = True

sketch17 = body.newObject("Sketcher::SketchObject", "Sketch016")
sketch17.AttachmentSupport = (doc.getObject("XZ_Plane"), [""])
sketch17.MapMode = "FlatFace"
sketch17.AttachmentOffset = App.Placement(Vector(0, 0, -7.5 * 25.4), App.Rotation())
sketch17.addGeometry(Part.LineSegment(Vector(0, -480, 0), Vector(0, -284, 0)), False)
sketch17.addGeometry(Part.LineSegment(Vector(0, -284, 0), Vector(6, -284, 0)), False)
sketch17.addGeometry(Part.LineSegment(Vector(6, -284, 0), Vector(6, -480, 0)), False)
sketch17.addGeometry(Part.LineSegment(Vector(6, -480, 0), Vector(0, -480, 0)), False)
sketch17.addConstraint(Sketcher.Constraint("Coincident", 0, 2, 1, 1))
sketch17.addConstraint(Sketcher.Constraint("Coincident", 1, 2, 2, 1))
sketch17.addConstraint(Sketcher.Constraint("Coincident", 2, 2, 3, 1))
sketch17.addConstraint(Sketcher.Constraint("Coincident", 3, 2, 0, 1))
sketch17.addConstraint(Sketcher.Constraint("Vertical", 0))
sketch17.addConstraint(Sketcher.Constraint("Horizontal", 1))
sketch17.addConstraint(Sketcher.Constraint("Vertical", 2))
sketch17.addConstraint(Sketcher.Constraint("Horizontal", 3))
sketch17.addConstraint(Sketcher.Constraint("PointOnObject", 0, 2, -2))
sketch17.addConstraint(Sketcher.Constraint("DistanceY", 0, 1, 0, 2, Q("7.7 in")))
sketch17.addConstraint(Sketcher.Constraint("DistanceX", 1, 1, 1, 2, Q("0.25 in")))
sketch17.addConstraint(Sketcher.Constraint("DistanceY", 0, 2, -1, 1, Q("11.2 in")))
sketch17.setExpression("Constraints[9]", "Params.sketch17_height")
sketch17.setExpression("Constraints[10]", "Params.sketch17_width")
pad9 = body.newObject("PartDesign::Pad", "Pad008")
pad9.Profile = sketch17
pad9.setExpression("Length", "Params.pad9_length")

sketch18 = body.newObject("Sketcher::SketchObject", "Sketch017")
sketch18.AttachmentSupport = (doc.getObject("XY_Plane"), [""])
sketch18.MapMode = "FlatFace"
sketch18.AttachmentOffset = App.Placement(Vector(0, 0, -16.9 * 25.4), App.Rotation())
sketch18.addGeometry(Part.LineSegment(Vector(381, 203, 0), Vector(381, 64, 0)), False)
sketch18.addGeometry(Part.LineSegment(Vector(381, 64, 0), Vector(375, 64, 0)), False)
sketch18.addGeometry(Part.LineSegment(Vector(375, 64, 0), Vector(375, 203, 0)), False)
sketch18.addGeometry(Part.LineSegment(Vector(375, 203, 0), Vector(381, 203, 0)), False)
sketch18.addConstraint(Sketcher.Constraint("Coincident", 0, 2, 1, 1))
sketch18.addConstraint(Sketcher.Constraint("Coincident", 1, 2, 2, 1))
sketch18.addConstraint(Sketcher.Constraint("Coincident", 2, 2, 3, 1))
sketch18.addConstraint(Sketcher.Constraint("Coincident", 3, 2, 0, 1))
sketch18.addConstraint(Sketcher.Constraint("Vertical", 0))
sketch18.addConstraint(Sketcher.Constraint("Horizontal", 1))
sketch18.addConstraint(Sketcher.Constraint("Vertical", 2))
sketch18.addConstraint(Sketcher.Constraint("Horizontal", 3))
sketch18.addConstraint(Sketcher.Constraint("DistanceY", 0, 2, 0, 1, Q("5.5 in")))
sketch18.addConstraint(Sketcher.Constraint("DistanceX", -1, 1, 0, 2, Q("15 in")))
sketch18.addConstraint(Sketcher.Constraint("DistanceY", -1, 1, 2, 2, Q("8 in")))
sketch18.addConstraint(Sketcher.Constraint("DistanceX", 1, 2, 1, 1, Q("0.25 in")))
sketch18.setExpression("Constraints[8]", "Params.sketch18_height")
sketch18.setExpression("Constraints[11]", "Params.sketch18_width")
pad10 = body.newObject("PartDesign::Pad", "Pad009")
pad10.Profile = sketch18
pad10.setExpression("Length", "Params.pad10_length")
pad10.Reversed = True

sketch19 = body.newObject("Sketcher::SketchObject", "Sketch018")
sketch19.AttachmentSupport = (doc.getObject("XZ_Plane"), [""])
sketch19.MapMode = "FlatFace"
sketch19.AttachmentOffset = App.Placement(Vector(0, 0, -8 * 25.4), App.Rotation())
sketch19.addGeometry(Part.LineSegment(Vector(375, -480, 0), Vector(375, -284, 0)), False)
sketch19.addGeometry(Part.LineSegment(Vector(375, -284, 0), Vector(381, -284, 0)), False)
sketch19.addGeometry(Part.LineSegment(Vector(381, -284, 0), Vector(381, -480, 0)), False)
sketch19.addGeometry(Part.LineSegment(Vector(381, -480, 0), Vector(375, -480, 0)), False)
sketch19.addConstraint(Sketcher.Constraint("Coincident", 0, 2, 1, 1))
sketch19.addConstraint(Sketcher.Constraint("Coincident", 1, 2, 2, 1))
sketch19.addConstraint(Sketcher.Constraint("Coincident", 2, 2, 3, 1))
sketch19.addConstraint(Sketcher.Constraint("Coincident", 3, 2, 0, 1))
sketch19.addConstraint(Sketcher.Constraint("Vertical", 0))
sketch19.addConstraint(Sketcher.Constraint("Horizontal", 1))
sketch19.addConstraint(Sketcher.Constraint("Vertical", 2))
sketch19.addConstraint(Sketcher.Constraint("Horizontal", 3))
sketch19.addConstraint(Sketcher.Constraint("DistanceY", 0, 1, 0, 2, Q("7.7 in")))
sketch19.addConstraint(Sketcher.Constraint("DistanceX", -1, 1, 1, 2, Q("15 in")))
sketch19.addConstraint(Sketcher.Constraint("DistanceX", 1, 1, 1, 2, Q("0.25 in")))
sketch19.addConstraint(Sketcher.Constraint("DistanceY", 0, 2, -1, 1, Q("11.2 in")))
sketch19.setExpression("Constraints[8]", "Params.sketch19_height")
sketch19.setExpression("Constraints[10]", "Params.sketch19_width")
pad11 = body.newObject("PartDesign::Pad", "Pad010")
pad11.Profile = sketch19
pad11.setExpression("Length", "Params.pad11_length")

sketch20 = body.newObject("Sketcher::SketchObject", "Sketch019")
sketch20.AttachmentSupport = (doc.getObject("XZ_Plane"), [""])
sketch20.MapMode = "FlatFace"
sketch20.AttachmentOffset = App.Placement(Vector(0, 0, -2.5 * 25.4), App.Rotation())
sketch20.addGeometry(Part.LineSegment(Vector(375, -429, 0), Vector(375, -480, 0)), False)
sketch20.addGeometry(Part.LineSegment(Vector(375, -480, 0), Vector(381, -480, 0)), False)
sketch20.addGeometry(Part.LineSegment(Vector(381, -480, 0), Vector(381, -429, 0)), False)
sketch20.addGeometry(Part.LineSegment(Vector(381, -429, 0), Vector(375, -429, 0)), False)
sketch20.addConstraint(Sketcher.Constraint("Coincident", 0, 2, 1, 1))
sketch20.addConstraint(Sketcher.Constraint("Coincident", 1, 2, 2, 1))
sketch20.addConstraint(Sketcher.Constraint("Coincident", 2, 2, 3, 1))
sketch20.addConstraint(Sketcher.Constraint("Coincident", 3, 2, 0, 1))
sketch20.addConstraint(Sketcher.Constraint("Vertical", 0))
sketch20.addConstraint(Sketcher.Constraint("Horizontal", 1))
sketch20.addConstraint(Sketcher.Constraint("Vertical", 2))
sketch20.addConstraint(Sketcher.Constraint("Horizontal", 3))
sketch20.addConstraint(Sketcher.Constraint("DistanceY", 0, 2, 0, 1, Q("2 in")))
sketch20.addConstraint(Sketcher.Constraint("DistanceX", -1, 1, 1, 2, Q("15 in")))
sketch20.addConstraint(Sketcher.Constraint("DistanceX", 1, 1, 1, 2, Q("0.25 in")))
sketch20.addConstraint(Sketcher.Constraint("DistanceY", 0, 2, -1, 1, Q("18.9 in")))
sketch20.setExpression("Constraints[8]", "Params.sketch20_height")
sketch20.setExpression("Constraints[10]", "Params.sketch20_width")
pad12 = body.newObject("PartDesign::Pad", "Pad011")
pad12.Profile = sketch20
pad12.setExpression("Length", "Params.pad12_length")

sketch21 = body.newObject("Sketcher::SketchObject", "Sketch020")
sketch21.AttachmentSupport = (doc.getObject("XZ_Plane"), [""])
sketch21.MapMode = "FlatFace"
sketch21.AttachmentOffset = App.Placement(Vector(0, 0, -7.5 * 25.4), App.Rotation())
sketch21.addGeometry(Part.LineSegment(Vector(0, -480, 0), Vector(0, -284, 0)), False)
sketch21.addGeometry(Part.LineSegment(Vector(0, -284, 0), Vector(6, -284, 0)), False)
sketch21.addGeometry(Part.LineSegment(Vector(6, -284, 0), Vector(6, -480, 0)), False)
sketch21.addGeometry(Part.LineSegment(Vector(6, -480, 0), Vector(0, -480, 0)), False)
sketch21.addConstraint(Sketcher.Constraint("Coincident", 0, 2, 1, 1))
sketch21.addConstraint(Sketcher.Constraint("Coincident", 1, 2, 2, 1))
sketch21.addConstraint(Sketcher.Constraint("Coincident", 2, 2, 3, 1))
sketch21.addConstraint(Sketcher.Constraint("Coincident", 3, 2, 0, 1))
sketch21.addConstraint(Sketcher.Constraint("Vertical", 0))
sketch21.addConstraint(Sketcher.Constraint("Horizontal", 1))
sketch21.addConstraint(Sketcher.Constraint("Vertical", 2))
sketch21.addConstraint(Sketcher.Constraint("Horizontal", 3))
sketch21.addConstraint(Sketcher.Constraint("PointOnObject", 0, 2, -2))
sketch21.addConstraint(Sketcher.Constraint("DistanceY", 0, 1, 0, 2, Q("7.7 in")))
sketch21.addConstraint(Sketcher.Constraint("DistanceX", 1, 1, 1, 2, Q("0.25 in")))
sketch21.addConstraint(Sketcher.Constraint("DistanceY", 0, 2, -1, 1, Q("11.2 in")))
sketch21.setExpression("Constraints[9]", "Params.sketch21_height")
sketch21.setExpression("Constraints[10]", "Params.sketch21_width")
pad13 = body.newObject("PartDesign::Pad", "Pad012")
pad13.Profile = sketch21
pad13.setExpression("Length", "Params.pad13_length")
pad13.Reversed = True

sketch22 = body.newObject("Sketcher::SketchObject", "Sketch021")
sketch22.AttachmentSupport = (doc.getObject("XZ_Plane"), [""])
sketch22.MapMode = "FlatFace"
sketch22.AttachmentOffset = App.Placement(Vector(0, 0, -0.25 * 25.4), App.Rotation())
sketch22.addGeometry(Part.LineSegment(Vector(0, -284, 0), Vector(0, -74, 0)), False)
sketch22.addGeometry(Part.LineSegment(Vector(0, -74, 0), Vector(381, -74, 0)), False)
sketch22.addGeometry(Part.LineSegment(Vector(381, -74, 0), Vector(381, -284, 0)), False)
sketch22.addGeometry(Part.LineSegment(Vector(381, -284, 0), Vector(0, -284, 0)), False)
sketch22.addConstraint(Sketcher.Constraint("Coincident", 0, 2, 1, 1))
sketch22.addConstraint(Sketcher.Constraint("Coincident", 1, 2, 2, 1))
sketch22.addConstraint(Sketcher.Constraint("Coincident", 2, 2, 3, 1))
sketch22.addConstraint(Sketcher.Constraint("Coincident", 3, 2, 0, 1))
sketch22.addConstraint(Sketcher.Constraint("Vertical", 0))
sketch22.addConstraint(Sketcher.Constraint("Horizontal", 1))
sketch22.addConstraint(Sketcher.Constraint("Vertical", 2))
sketch22.addConstraint(Sketcher.Constraint("Horizontal", 3))
sketch22.addConstraint(Sketcher.Constraint("PointOnObject", 0, 2, -2))
sketch22.addConstraint(Sketcher.Constraint("DistanceX", 1, 1, 1, 2, Q("15 in")))
sketch22.addConstraint(Sketcher.Constraint("DistanceY", 0, 1, 0, 2, Q("8.3 in")))
sketch22.addConstraint(Sketcher.Constraint("DistanceY", 0, 2, -1, 1, Q("2.9 in")))
sketch22.setExpression("Constraints[9]", "Params.sketch22_width")
sketch22.setExpression("Constraints[10]", "Params.sketch22_height")
pocket9 = body.newObject("PartDesign::Pocket", "Pocket008")
pocket9.Profile = sketch22
pocket9.setExpression("Length", "Params.pocket9_length")
pocket9.Reversed = True

sketch23 = body.newObject("Sketcher::SketchObject", "Sketch022")
sketch23.AttachmentSupport = (doc.getObject("XZ_Plane"), [""])
sketch23.MapMode = "FlatFace"
sketch23.AttachmentOffset = App.Placement(Vector(0, 0, -0.25 * 25.4), App.Rotation())
sketch23.addGeometry(Part.Circle(Vector(368.3, -416.6, 0), Vector(0, 0, 1), 3.2), False)
sketch23.addConstraint(Sketcher.Constraint("Diameter", 0, Q("0.25 in")))
sketch23.addConstraint(Sketcher.Constraint("DistanceX", -1, 1, 0, 3, Q("14.5 in")))
sketch23.addConstraint(Sketcher.Constraint("DistanceY", 0, 3, -1, 1, Q("16.4 in")))
sketch23.setExpression("Constraints[0]", "Params.sketch23_diameter")
pocket10 = body.newObject("PartDesign::Pocket", "Pocket009")
pocket10.Profile = sketch23
pocket10.setExpression("Length", "Params.pocket10_length")
pocket10.Reversed = True

sketch24 = body.newObject("Sketcher::SketchObject", "Sketch023")
sketch24.AttachmentSupport = (doc.getObject("XZ_Plane"), [""])
sketch24.MapMode = "FlatFace"
sketch24.AttachmentOffset = App.Placement(Vector(0, 0, -0.25 * 25.4), App.Rotation())
sketch24.addGeometry(Part.Circle(Vector(12.7, -416.6, 0), Vector(0, 0, 1), 3.2), False)
sketch24.addConstraint(Sketcher.Constraint("Diameter", 0, Q("0.25 in")))
sketch24.addConstraint(Sketcher.Constraint("DistanceX", -1, 1, 0, 3, Q("0.5 in")))
sketch24.addConstraint(Sketcher.Constraint("DistanceY", 0, 3, -1, 1, Q("16.4 in")))
sketch24.setExpression("Constraints[0]", "Params.sketch24_diameter")
pocket11 = body.newObject("PartDesign::Pocket", "Pocket010")
pocket11.Profile = sketch24
pocket11.setExpression("Length", "Params.pocket11_length")
pocket11.Reversed = True

doc.recompute()
